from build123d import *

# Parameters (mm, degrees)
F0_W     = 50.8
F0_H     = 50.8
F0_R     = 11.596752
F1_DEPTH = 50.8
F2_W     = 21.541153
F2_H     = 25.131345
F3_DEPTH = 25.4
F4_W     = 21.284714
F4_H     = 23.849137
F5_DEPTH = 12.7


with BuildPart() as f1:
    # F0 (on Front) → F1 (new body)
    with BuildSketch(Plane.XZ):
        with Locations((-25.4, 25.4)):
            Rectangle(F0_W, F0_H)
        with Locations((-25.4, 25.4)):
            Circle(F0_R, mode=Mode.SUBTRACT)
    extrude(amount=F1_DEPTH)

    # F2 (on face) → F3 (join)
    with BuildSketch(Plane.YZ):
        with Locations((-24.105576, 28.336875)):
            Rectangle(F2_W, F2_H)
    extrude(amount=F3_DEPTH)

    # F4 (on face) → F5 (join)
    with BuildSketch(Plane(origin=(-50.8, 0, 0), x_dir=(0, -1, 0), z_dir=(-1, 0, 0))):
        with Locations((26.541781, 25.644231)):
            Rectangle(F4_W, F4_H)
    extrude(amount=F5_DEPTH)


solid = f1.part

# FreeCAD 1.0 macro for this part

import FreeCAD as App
import Part
import Sketcher
from FreeCAD import Vector
Q = App.Units.Quantity


def add_polygon(sketch, points):
    """Adds a closed chain of lines whose ends are joined by coincident constraints."""
    first, n = sketch.GeometryCount, len(points)
    for a, b in zip(points, points[1:] + points[:1]):
        sketch.addGeometry(Part.LineSegment(App.Vector(*a, 0), App.Vector(*b, 0)), False)
    for i in range(n):
        sketch.addConstraint(Sketcher.Constraint("Coincident", first + i, 2, first + (i + 1) % n, 1))

doc = App.newDocument("Part")
params = doc.addObject("Spreadsheet::Sheet", "Params")
for row, (alias, value) in enumerate([
    ("sketch1_width", "2 in"),
    ("pad1_length", "2 in"),
    ("pad2_length", "1 in"),
    ("pad3_length", "0.5 in"),
], start=1):
    params.set(f"A{row}", alias)
    params.set(f"B{row}", "=" + value)
    params.setAlias(f"B{row}", alias)

body = doc.addObject("PartDesign::Body", "Body")

# Sketch on XZ plane
sketch1 = body.newObject("Sketcher::SketchObject", "Sketch")
sketch1.AttachmentSupport = (doc.getObject("XZ_Plane"), [""])
sketch1.MapMode = "FlatFace"
add_polygon(sketch1, [(-50.8, 50.8), (-50.8, 0), (0, 0), (0, 50.8)])  # lines 0-3
sketch1.addGeometry(Part.Circle(Vector(-25.4, 25.4, 0), Vector(0, 0, 1), 11.596752), False)  # 4
sketch1.addConstraint([
    Sketcher.Constraint("Vertical", 0),
    Sketcher.Constraint("Horizontal", 1),
    Sketcher.Constraint("Vertical", 2),
    Sketcher.Constraint("Horizontal", 3),
    Sketcher.Constraint("Coincident", 1, 2, -1, 1),
    Sketcher.Constraint("Equal", 3, 0),
    Sketcher.Constraint("DistanceX", 1, 1, 1, 2, Q("2 in")),
    Sketcher.Constraint("DistanceX", 4, 3, -1, 1, Q("1 in")),
    Sketcher.Constraint("DistanceY", -1, 1, 4, 3, Q("1 in")),
    Sketcher.Constraint("Diameter", 4, 23.193504),
])
sketch1.setExpression("Constraints[10]", "Params.sketch1_width")
pad1 = body.newObject("PartDesign::Pad", "Pad")
pad1.Profile = sketch1
pad1.setExpression("Length", "Params.pad1_length")

# Sketch on YZ plane
sketch2 = body.newObject("Sketcher::SketchObject", "Sketch001")
sketch2.AttachmentSupport = (doc.getObject("YZ_Plane"), [""])
sketch2.MapMode = "FlatFace"
add_polygon(sketch2, [(-34.876153, 40.902547), (-34.876153, 15.771202), (-13.335, 15.771202), (-13.335, 40.902547)])  # lines 0-3
sketch2.addConstraint([
    Sketcher.Constraint("Vertical", 0),
    Sketcher.Constraint("Horizontal", 1),
    Sketcher.Constraint("Vertical", 2),
    Sketcher.Constraint("Horizontal", 3),
    Sketcher.Constraint("DistanceX", 1, 2, -1, 1, Q("0.525 in")),
    Sketcher.Constraint("DistanceX", 1, 1, 1, 2, 21.541153),
    Sketcher.Constraint("DistanceY", 0, 2, 0, 1, 25.131345),
    Sketcher.Constraint("DistanceY", -1, 1, 0, 2, 15.771202),
])
pad2 = body.newObject("PartDesign::Pad", "Pad001")
pad2.Profile = sketch2
pad2.setExpression("Length", "Params.pad2_length")

# Sketch on YZ plane
sketch3 = body.newObject("Sketcher::SketchObject", "Sketch002")
sketch3.AttachmentSupport = (doc.getObject("YZ_Plane"), [""])
sketch3.MapMode = "FlatFace"
sketch3.AttachmentOffset = App.Placement(Vector(0, 0, -2 * 25.4), App.Rotation())
add_polygon(sketch3, [(-15.899424, 37.568799), (-15.899424, 13.719663), (-37.184138, 13.719663), (-37.184138, 37.568799)])  # lines 0-3
sketch3.addConstraint([
    Sketcher.Constraint("Vertical", 0),
    Sketcher.Constraint("Horizontal", 1),
    Sketcher.Constraint("Vertical", 2),
    Sketcher.Constraint("Horizontal", 3),
    Sketcher.Constraint("DistanceY", -1, 1, 2, 2, 37.568799),
    Sketcher.Constraint("DistanceX", 1, 2, 1, 1, 21.284714),
    Sketcher.Constraint("DistanceY", 0, 2, 0, 1, 23.849137),
    Sketcher.Constraint("DistanceX", 0, 2, -1, 1, 15.899424),
])
pad3 = body.newObject("PartDesign::Pad", "Pad002")
pad3.Profile = sketch3
pad3.setExpression("Length", "Params.pad3_length")
pad3.Reversed = True

doc.recompute()
